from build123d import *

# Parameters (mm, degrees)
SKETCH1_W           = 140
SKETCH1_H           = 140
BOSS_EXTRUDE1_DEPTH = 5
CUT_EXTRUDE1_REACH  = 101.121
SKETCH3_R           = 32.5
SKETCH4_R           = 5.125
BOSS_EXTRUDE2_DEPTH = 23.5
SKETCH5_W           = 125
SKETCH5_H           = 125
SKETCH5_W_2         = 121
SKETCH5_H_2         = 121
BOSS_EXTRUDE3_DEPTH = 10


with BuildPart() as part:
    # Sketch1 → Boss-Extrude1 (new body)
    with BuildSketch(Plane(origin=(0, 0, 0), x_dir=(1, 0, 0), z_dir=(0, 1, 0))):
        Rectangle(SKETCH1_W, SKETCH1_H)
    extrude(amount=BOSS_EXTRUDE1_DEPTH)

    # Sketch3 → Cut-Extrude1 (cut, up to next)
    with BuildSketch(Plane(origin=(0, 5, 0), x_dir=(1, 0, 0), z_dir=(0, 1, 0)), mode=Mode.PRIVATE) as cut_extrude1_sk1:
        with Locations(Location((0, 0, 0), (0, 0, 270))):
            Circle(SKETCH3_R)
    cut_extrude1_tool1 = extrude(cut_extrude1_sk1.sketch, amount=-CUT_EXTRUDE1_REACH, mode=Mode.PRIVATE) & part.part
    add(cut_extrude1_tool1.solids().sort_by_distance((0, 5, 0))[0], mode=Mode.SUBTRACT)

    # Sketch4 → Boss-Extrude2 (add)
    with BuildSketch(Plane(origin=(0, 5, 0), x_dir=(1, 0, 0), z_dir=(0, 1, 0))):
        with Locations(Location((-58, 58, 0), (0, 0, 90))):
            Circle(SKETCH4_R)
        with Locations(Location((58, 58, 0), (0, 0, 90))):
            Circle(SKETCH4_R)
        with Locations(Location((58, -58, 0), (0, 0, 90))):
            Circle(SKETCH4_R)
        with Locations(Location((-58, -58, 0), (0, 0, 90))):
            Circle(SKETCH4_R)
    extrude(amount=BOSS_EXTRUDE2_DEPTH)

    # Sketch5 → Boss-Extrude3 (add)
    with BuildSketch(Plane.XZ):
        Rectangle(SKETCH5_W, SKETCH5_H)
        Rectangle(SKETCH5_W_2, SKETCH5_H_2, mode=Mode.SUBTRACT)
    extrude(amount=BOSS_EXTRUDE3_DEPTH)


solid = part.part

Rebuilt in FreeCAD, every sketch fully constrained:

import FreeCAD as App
import Part
import Sketcher
Q = App.Units.Quantity


def add_polygon(sketch, points):
    """Adds a closed chain of lines whose ends are joined by coincident constraints."""
    first, n = sketch.GeometryCount, len(points)
    for a, b in zip(points, points[1:] + points[:1]):
        sketch.addGeometry(Part.LineSegment(App.Vector(*a, 0), App.Vector(*b, 0)), False)
    for i in range(n):
        sketch.addConstraint(Sketcher.Constraint("Coincident", first + i, 2, first + (i + 1) % n, 1))

doc = App.newDocument("Part")
body = doc.addObject("PartDesign::Body", "Body")

# Sketch on XZ plane
sketch1 = doc.addObject("Sketcher::SketchObject", "Sketch")
body.addObject(sketch1)
sketch1.AttachmentSupport = (doc.XZ_Plane, [""])
sketch1.MapMode = "FlatFace"
add_polygon(sketch1, [(-70, -70), (-70, 70), (70, 70), (70, -70)])  # lines 0-3
sketch1.addConstraint(Sketcher.Constraint("Vertical", 0))
sketch1.addConstraint(Sketcher.Constraint("Horizontal", 1))
sketch1.addConstraint(Sketcher.Constraint("Vertical", 2))
sketch1.addConstraint(Sketcher.Constraint("Horizontal", 3))
sketch1.addConstraint(Sketcher.Constraint("Symmetric", 0, 2, 2, 2, -1, 1))
sketch1.addConstraint(Sketcher.Constraint("Equal", 3, 0))
sketch1.addConstraint(Sketcher.Constraint("DistanceX", 1, 1, 1, 2, Q("140 mm")))
pad1 = doc.addObject("PartDesign::Pad", "Pad")
body.addObject(pad1)
pad1.Profile = sketch1
pad1.Length = 5
pad1.Reversed = True

# Sketch on XZ plane
sketch2 = doc.addObject("Sketcher::SketchObject", "Sketch001")
body.addObject(sketch2)
sketch2.AttachmentSupport = (doc.XZ_Plane, [""])
sketch2.MapMode = "FlatFace"
sketch2.AttachmentOffset = App.Placement(App.Vector(0, 0, -5), App.Rotation())
sketch2.addGeometry(Part.Circle(App.Vector(0, 0, 0), App.Vector(0, 0, 1), 32), False)
sketch2.addConstraint(Sketcher.Constraint("Coincident", 0, 3, -1, 1))
sketch2.addConstraint(Sketcher.Constraint("Diameter", 0, Q("65 mm")))
pocket1 = doc.addObject("PartDesign::Pocket", "Pocket")
body.addObject(pocket1)
pocket1.Profile = sketch2
pocket1.Type = "UpToFirst"
pocket1.Reversed = True

# Sketch on XZ plane
sketch3 = doc.addObject("Sketcher::SketchObject", "Sketch002")
body.addObject(sketch3)
sketch3.AttachmentSupport = (doc.XZ_Plane, [""])
sketch3.MapMode = "FlatFace"
sketch3.AttachmentOffset = App.Placement(App.Vector(0, 0, -5), App.Rotation())
sketch3.addGeometry(Part.Circle(App.Vector(-58, -58, 0), App.Vector(0, 0, 1), 5), False)
sketch3.addGeometry(Part.Circle(App.Vector(58, -58, 0), App.Vector(0, 0, 1), 5), False)
sketch3.addGeometry(Part.Circle(App.Vector(58, 58, 0), App.Vector(0, 0, 1), 5), False)
sketch3.addGeometry(Part.Circle(App.Vector(-58, 58, 0), App.Vector(0, 0, 1), 5), False)
sketch3.addConstraint(Sketcher.Constraint("Equal", 0, 1))
sketch3.addConstraint(Sketcher.Constraint("Equal", 1, 2))
sketch3.addConstraint(Sketcher.Constraint("Equal", 2, 3))
sketch3.addConstraint(Sketcher.Constraint("Symmetric", 0, 3, 2, 3, -1, 1))
sketch3.addConstraint(Sketcher.Constraint("Symmetric", 1, 3, 3, 3, -1, 1))
sketch3.addConstraint(Sketcher.Constraint("Symmetric", 0, 3, 1, 3, -2))
sketch3.addConstraint(Sketcher.Constraint("Diameter", 0, Q("10.25 mm")))
sketch3.addConstraint(Sketcher.Constraint("DistanceX", 0, 3, -1, 1, Q("58 mm")))
sketch3.addConstraint(Sketcher.Constraint("DistanceY", 0, 3, -1, 1, Q("58 mm")))
pad2 = doc.addObject("PartDesign::Pad", "Pad001")
body.addObject(pad2)
pad2.Profile = sketch3
pad2.Length = 23.5
pad2.Reversed = True

# Sketch on XZ plane
sketch4 = doc.addObject("Sketcher::SketchObject", "Sketch003")
body.addObject(sketch4)
sketch4.AttachmentSupport = (doc.XZ_Plane, [""])
sketch4.MapMode = "FlatFace"
add_polygon(sketch4, [(-62, 62), (-62, -62), (62, -62), (62, 62)])  # lines 0-3
add_polygon(sketch4, [(60, -60), (-60, -60), (-60, 60), (60, 60)])  # lines 4-7
sketch4.addConstraint(Sketcher.Constraint("Vertical", 0))
sketch4.addConstraint(Sketcher.Constraint("Horizontal", 1))
sketch4.addConstraint(Sketcher.Constraint("Vertical", 2))
sketch4.addConstraint(Sketcher.Constraint("Horizontal", 3))
sketch4.addConstraint(Sketcher.Constraint("Horizontal", 4))
sketch4.addConstraint(Sketcher.Constraint("Vertical", 5))
sketch4.addConstraint(Sketcher.Constraint("Horizontal", 6))
sketch4.addConstraint(Sketcher.Constraint("Vertical", 7))
sketch4.addConstraint(Sketcher.Constraint("Symmetric", 0, 2, 2, 2, -1, 1))
sketch4.addConstraint(Sketcher.Constraint("Symmetric", 4, 2, 6, 2, -1, 1))
sketch4.addConstraint(Sketcher.Constraint("Equal", 3, 0))
sketch4.addConstraint(Sketcher.Constraint("Equal", 6, 5))
sketch4.addConstraint(Sketcher.Constraint("DistanceX", 1, 1, 1, 2, Q("125 mm")))
sketch4.addConstraint(Sketcher.Constraint("DistanceX", 4, 2, 4, 1, Q("121 mm")))
pad3 = doc.addObject("PartDesign::Pad", "Pad002")
body.addObject(pad3)
pad3.Profile = sketch4
pad3.Length = 10

doc.recompute()
